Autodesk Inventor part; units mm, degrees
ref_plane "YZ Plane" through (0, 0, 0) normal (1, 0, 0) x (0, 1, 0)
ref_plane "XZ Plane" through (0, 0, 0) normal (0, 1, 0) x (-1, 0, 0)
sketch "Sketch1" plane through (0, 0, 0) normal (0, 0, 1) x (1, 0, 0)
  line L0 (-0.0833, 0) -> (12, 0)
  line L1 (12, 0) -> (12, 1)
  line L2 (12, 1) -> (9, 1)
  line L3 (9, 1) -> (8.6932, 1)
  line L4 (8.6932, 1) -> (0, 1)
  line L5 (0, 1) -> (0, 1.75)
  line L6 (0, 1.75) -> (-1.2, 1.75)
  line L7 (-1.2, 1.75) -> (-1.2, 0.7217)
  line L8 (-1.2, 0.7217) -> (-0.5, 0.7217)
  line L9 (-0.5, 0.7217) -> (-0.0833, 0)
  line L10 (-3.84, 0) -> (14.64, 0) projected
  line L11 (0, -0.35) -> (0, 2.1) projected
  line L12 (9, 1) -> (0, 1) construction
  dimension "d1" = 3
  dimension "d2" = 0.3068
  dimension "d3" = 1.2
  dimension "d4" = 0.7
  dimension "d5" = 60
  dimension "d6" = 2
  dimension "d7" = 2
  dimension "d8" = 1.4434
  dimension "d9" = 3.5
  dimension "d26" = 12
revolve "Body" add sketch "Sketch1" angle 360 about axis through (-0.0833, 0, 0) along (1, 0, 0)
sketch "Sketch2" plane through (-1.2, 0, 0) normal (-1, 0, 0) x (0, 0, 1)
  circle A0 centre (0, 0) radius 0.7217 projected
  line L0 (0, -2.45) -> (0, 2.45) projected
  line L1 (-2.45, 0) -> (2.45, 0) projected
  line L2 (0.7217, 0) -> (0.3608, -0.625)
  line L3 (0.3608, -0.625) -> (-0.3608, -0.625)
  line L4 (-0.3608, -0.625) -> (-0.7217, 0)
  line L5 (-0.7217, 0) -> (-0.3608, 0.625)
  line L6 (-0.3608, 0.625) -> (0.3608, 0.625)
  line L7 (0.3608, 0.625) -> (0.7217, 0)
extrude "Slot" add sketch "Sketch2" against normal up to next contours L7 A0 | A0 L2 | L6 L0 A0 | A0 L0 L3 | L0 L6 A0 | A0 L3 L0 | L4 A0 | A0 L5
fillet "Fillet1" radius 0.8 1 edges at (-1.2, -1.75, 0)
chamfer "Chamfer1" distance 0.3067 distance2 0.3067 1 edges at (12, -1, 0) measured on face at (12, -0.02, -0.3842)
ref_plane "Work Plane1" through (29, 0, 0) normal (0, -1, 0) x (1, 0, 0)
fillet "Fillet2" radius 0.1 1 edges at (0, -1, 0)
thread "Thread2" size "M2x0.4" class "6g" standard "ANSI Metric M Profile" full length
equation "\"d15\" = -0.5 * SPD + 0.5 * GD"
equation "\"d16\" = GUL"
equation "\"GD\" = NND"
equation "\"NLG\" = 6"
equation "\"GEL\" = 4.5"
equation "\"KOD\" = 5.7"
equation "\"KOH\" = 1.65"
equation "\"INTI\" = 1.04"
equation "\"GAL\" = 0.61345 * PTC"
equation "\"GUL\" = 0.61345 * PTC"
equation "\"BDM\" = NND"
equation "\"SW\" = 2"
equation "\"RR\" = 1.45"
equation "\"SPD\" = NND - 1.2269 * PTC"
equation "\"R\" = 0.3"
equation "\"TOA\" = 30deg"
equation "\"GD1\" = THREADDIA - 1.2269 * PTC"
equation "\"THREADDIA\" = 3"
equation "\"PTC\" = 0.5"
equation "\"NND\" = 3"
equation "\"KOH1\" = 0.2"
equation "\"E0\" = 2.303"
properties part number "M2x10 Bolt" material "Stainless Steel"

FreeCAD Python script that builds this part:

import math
import FreeCAD as App
import Part
import Sketcher

V = App.Vector
Q = App.Units.Quantity


def edges_at(feature, points):
    """Names of the edges that pass closest to the given points."""
    edges = feature.Shape.Edges
    near = lambda p: min(range(len(edges)), key=lambda i: edges[i].distToShape(Part.Vertex(*p))[0])
    return sorted({f"Edge{near(p) + 1}" for p in points})

doc = App.newDocument("Part")
body = doc.addObject("PartDesign::Body", "Body")

sketch1 = doc.addObject("Sketcher::SketchObject", "Sketch")
body.addObject(sketch1)
sketch1.AttachmentSupport = (doc.XY_Plane, [""])
sketch1.MapMode = "FlatFace"
sketch1.addGeometry([
    Part.LineSegment(V(-0.5, 0.7217, 0), V(-0.0833, 0, 0)),
    Part.LineSegment(V(-0.0833, 0, 0), V(12, 0, 0)),
    Part.LineSegment(V(12, 0, 0), V(12, 1, 0)),
    Part.LineSegment(V(12, 1, 0), V(0, 1, 0)),
    Part.LineSegment(V(0, 1, 0), V(0, 1.75, 0)),
    Part.LineSegment(V(0, 1.75, 0), V(-1.2, 1.75, 0)),
    Part.LineSegment(V(-1.2, 1.75, 0), V(-1.2, 0.7217, 0)),
    Part.LineSegment(V(-1.2, 0.7217, 0), V(-0.5, 0.7217, 0)),
], False)
sketch1.addConstraint([
    Sketcher.Constraint("Coincident", 0, 2, 1, 1),
    Sketcher.Constraint("Coincident", 1, 2, 2, 1),
    Sketcher.Constraint("Coincident", 2, 2, 3, 1),
    Sketcher.Constraint("Coincident", 3, 2, 4, 1),
    Sketcher.Constraint("Coincident", 4, 2, 5, 1),
    Sketcher.Constraint("Coincident", 5, 2, 6, 1),
    Sketcher.Constraint("Coincident", 6, 2, 7, 1),
    Sketcher.Constraint("Coincident", 7, 2, 0, 1),
    Sketcher.Constraint("Horizontal", 1),
    Sketcher.Constraint("Vertical", 2),
    Sketcher.Constraint("Horizontal", 3),
    Sketcher.Constraint("Vertical", 4),
    Sketcher.Constraint("Horizontal", 5),
    Sketcher.Constraint("Vertical", 6),
    Sketcher.Constraint("Horizontal", 7),
    Sketcher.Constraint("PointOnObject", 0, 2, -1),
    Sketcher.Constraint("PointOnObject", 3, 2, -2),
    Sketcher.Constraint("DistanceX", 3, 2, 3, 1, Q("12 mm")),
    Sketcher.Constraint("DistanceX", 5, 2, 5, 1, Q("1.2 mm")),
    Sketcher.Constraint("DistanceX", 7, 1, 7, 2, Q("0.7 mm")),
    Sketcher.Constraint("DistanceY", 2, 1, 2, 2, Q("1 mm")),
    Sketcher.Constraint("DistanceY", 4, 1, 4, 2, Q("0.75 mm")),
    Sketcher.Constraint("DistanceX", 1, 1, 1, 2, Q("12.0833 mm")),
    Sketcher.Constraint("DistanceY", 6, 2, 6, 1, Q("1.0283 mm")),
])
revolution = doc.addObject("PartDesign::Revolution", "Revolution")
body.addObject(revolution)
revolution.Profile = sketch1
revolution.ReferenceAxis = (sketch1, ["H_Axis"])
revolution.Angle = 360

sketch2 = doc.addObject("Sketcher::SketchObject", "Sketch001")
body.addObject(sketch2)
sketch2.AttachmentSupport = (doc.YZ_Plane, [""])
sketch2.MapMode = "FlatFace"
sketch2.AttachmentOffset = App.Placement(V(0, 0, -1.2), App.Rotation())
sketch2.addGeometry([
    Part.LineSegment(V(0.625, 0.3608, 0), V(0, 0.7217, 0)),
    Part.ArcOfCircle(Part.Circle(V(0, 0, 0), V(0, 0, 1), 0.7217), math.radians(29.99698), math.radians(90)),
    Part.ArcOfCircle(Part.Circle(V(0, 0, 0), V(0, 0, 1), 0.7217), math.radians(90), math.radians(150.00302)),
    Part.LineSegment(V(0, 0.7217, 0), V(-0.625, 0.3608, 0)),
    Part.ArcOfCircle(Part.Circle(V(0, 0, 0), V(0, 0, 1), 0.7217), math.radians(-29.99698), math.radians(29.99698)),
    Part.LineSegment(V(0.625, 0.3608, 0), V(0.625, -0.3608, 0)),
    Part.LineSegment(V(-0.625, 0.3608, 0), V(-0.625, -0.3608, 0)),
    Part.ArcOfCircle(Part.Circle(V(0, 0, 0), V(0, 0, 1), 0.7217), math.radians(150.00302), math.radians(209.99698)),
    Part.LineSegment(V(-0.625, -0.3608, 0), V(0, -0.7217, 0)),
    Part.ArcOfCircle(Part.Circle(V(0, 0, 0), V(0, 0, 1), 0.7217), math.radians(-150.00302), math.radians(-90)),
    Part.ArcOfCircle(Part.Circle(V(0, 0, 0), V(0, 0, 1), 0.7217), math.radians(-90), math.radians(-29.99698)),
    Part.LineSegment(V(0, -0.7217, 0), V(0.625, -0.3608, 0)),
], False)
sketch2.addConstraint([
    Sketcher.Constraint("Coincident", 0, 1, 1, 1),
    Sketcher.Constraint("Coincident", 1, 2, 0, 2),
    Sketcher.Constraint("Coincident", 2, 1, 3, 1),
    Sketcher.Constraint("Coincident", 3, 2, 2, 2),
    Sketcher.Constraint("Coincident", 4, 1, 5, 2),
    Sketcher.Constraint("Coincident", 5, 1, 4, 2),
    Sketcher.Constraint("Coincident", 6, 1, 7, 1),
    Sketcher.Constraint("Coincident", 7, 2, 6, 2),
    Sketcher.Constraint("Coincident", 8, 1, 9, 1),
    Sketcher.Constraint("Coincident", 9, 2, 8, 2),
    Sketcher.Constraint("Coincident", 10, 1, 11, 1),
    Sketcher.Constraint("Coincident", 11, 2, 10, 2),
    Sketcher.Constraint("Vertical", 5),
    Sketcher.Constraint("Vertical", 6),
    Sketcher.Constraint("Coincident", 1, 3, -1, 1),
    Sketcher.Constraint("Coincident", 2, 3, -1, 1),
    Sketcher.Constraint("Coincident", 4, 3, -1, 1),
    Sketcher.Constraint("Coincident", 7, 3, -1, 1),
    Sketcher.Constraint("Coincident", 9, 3, -1, 1),
    Sketcher.Constraint("Coincident", 10, 3, -1, 1),
    Sketcher.Constraint("Coincident", 2, 1, 1, 2),
    Sketcher.Constraint("Coincident", 5, 1, 0, 1),
    Sketcher.Constraint("Coincident", 6, 1, 3, 2),
    Sketcher.Constraint("Coincident", 8, 1, 7, 2),
    Sketcher.Constraint("Coincident", 10, 1, 9, 2),
    Sketcher.Constraint("PointOnObject", 1, 2, -2),
    Sketcher.Constraint("PointOnObject", 9, 2, -2),
    Sketcher.Constraint("Parallel", 0, 8),
    Sketcher.Constraint("Parallel", 3, 11),
    Sketcher.Constraint("Radius", 1, Q("0.7217 mm")),
    Sketcher.Constraint("DistanceY", 5, 2, 5, 1, Q("0.7216 mm")),
])
pad1 = doc.addObject("PartDesign::Pad", "Pad")
body.addObject(pad1)
pad1.Profile = sketch2
pad1.Type = "UpToFirst"
doc.recompute()

fillet = doc.addObject("PartDesign::Fillet", "Fillet")
body.addObject(fillet)
fillet.Base = (pad1, edges_at(pad1, [(-1.2, -1.75, 0)]))
fillet.Radius = 0.8
doc.recompute()

chamfer = doc.addObject("PartDesign::Chamfer", "Chamfer")
body.addObject(chamfer)
chamfer.Base = (fillet, edges_at(fillet, [(12, -1, 0)]))
chamfer.ChamferType = "Two distances"
chamfer.Size = 0.3067
chamfer.Size2 = 0.3067
doc.recompute()

fillet2 = doc.addObject("PartDesign::Fillet", "Fillet001")
body.addObject(fillet2)
fillet2.Base = (chamfer, edges_at(chamfer, [(0, -1, 0)]))
fillet2.Radius = 0.1

doc.recompute()
